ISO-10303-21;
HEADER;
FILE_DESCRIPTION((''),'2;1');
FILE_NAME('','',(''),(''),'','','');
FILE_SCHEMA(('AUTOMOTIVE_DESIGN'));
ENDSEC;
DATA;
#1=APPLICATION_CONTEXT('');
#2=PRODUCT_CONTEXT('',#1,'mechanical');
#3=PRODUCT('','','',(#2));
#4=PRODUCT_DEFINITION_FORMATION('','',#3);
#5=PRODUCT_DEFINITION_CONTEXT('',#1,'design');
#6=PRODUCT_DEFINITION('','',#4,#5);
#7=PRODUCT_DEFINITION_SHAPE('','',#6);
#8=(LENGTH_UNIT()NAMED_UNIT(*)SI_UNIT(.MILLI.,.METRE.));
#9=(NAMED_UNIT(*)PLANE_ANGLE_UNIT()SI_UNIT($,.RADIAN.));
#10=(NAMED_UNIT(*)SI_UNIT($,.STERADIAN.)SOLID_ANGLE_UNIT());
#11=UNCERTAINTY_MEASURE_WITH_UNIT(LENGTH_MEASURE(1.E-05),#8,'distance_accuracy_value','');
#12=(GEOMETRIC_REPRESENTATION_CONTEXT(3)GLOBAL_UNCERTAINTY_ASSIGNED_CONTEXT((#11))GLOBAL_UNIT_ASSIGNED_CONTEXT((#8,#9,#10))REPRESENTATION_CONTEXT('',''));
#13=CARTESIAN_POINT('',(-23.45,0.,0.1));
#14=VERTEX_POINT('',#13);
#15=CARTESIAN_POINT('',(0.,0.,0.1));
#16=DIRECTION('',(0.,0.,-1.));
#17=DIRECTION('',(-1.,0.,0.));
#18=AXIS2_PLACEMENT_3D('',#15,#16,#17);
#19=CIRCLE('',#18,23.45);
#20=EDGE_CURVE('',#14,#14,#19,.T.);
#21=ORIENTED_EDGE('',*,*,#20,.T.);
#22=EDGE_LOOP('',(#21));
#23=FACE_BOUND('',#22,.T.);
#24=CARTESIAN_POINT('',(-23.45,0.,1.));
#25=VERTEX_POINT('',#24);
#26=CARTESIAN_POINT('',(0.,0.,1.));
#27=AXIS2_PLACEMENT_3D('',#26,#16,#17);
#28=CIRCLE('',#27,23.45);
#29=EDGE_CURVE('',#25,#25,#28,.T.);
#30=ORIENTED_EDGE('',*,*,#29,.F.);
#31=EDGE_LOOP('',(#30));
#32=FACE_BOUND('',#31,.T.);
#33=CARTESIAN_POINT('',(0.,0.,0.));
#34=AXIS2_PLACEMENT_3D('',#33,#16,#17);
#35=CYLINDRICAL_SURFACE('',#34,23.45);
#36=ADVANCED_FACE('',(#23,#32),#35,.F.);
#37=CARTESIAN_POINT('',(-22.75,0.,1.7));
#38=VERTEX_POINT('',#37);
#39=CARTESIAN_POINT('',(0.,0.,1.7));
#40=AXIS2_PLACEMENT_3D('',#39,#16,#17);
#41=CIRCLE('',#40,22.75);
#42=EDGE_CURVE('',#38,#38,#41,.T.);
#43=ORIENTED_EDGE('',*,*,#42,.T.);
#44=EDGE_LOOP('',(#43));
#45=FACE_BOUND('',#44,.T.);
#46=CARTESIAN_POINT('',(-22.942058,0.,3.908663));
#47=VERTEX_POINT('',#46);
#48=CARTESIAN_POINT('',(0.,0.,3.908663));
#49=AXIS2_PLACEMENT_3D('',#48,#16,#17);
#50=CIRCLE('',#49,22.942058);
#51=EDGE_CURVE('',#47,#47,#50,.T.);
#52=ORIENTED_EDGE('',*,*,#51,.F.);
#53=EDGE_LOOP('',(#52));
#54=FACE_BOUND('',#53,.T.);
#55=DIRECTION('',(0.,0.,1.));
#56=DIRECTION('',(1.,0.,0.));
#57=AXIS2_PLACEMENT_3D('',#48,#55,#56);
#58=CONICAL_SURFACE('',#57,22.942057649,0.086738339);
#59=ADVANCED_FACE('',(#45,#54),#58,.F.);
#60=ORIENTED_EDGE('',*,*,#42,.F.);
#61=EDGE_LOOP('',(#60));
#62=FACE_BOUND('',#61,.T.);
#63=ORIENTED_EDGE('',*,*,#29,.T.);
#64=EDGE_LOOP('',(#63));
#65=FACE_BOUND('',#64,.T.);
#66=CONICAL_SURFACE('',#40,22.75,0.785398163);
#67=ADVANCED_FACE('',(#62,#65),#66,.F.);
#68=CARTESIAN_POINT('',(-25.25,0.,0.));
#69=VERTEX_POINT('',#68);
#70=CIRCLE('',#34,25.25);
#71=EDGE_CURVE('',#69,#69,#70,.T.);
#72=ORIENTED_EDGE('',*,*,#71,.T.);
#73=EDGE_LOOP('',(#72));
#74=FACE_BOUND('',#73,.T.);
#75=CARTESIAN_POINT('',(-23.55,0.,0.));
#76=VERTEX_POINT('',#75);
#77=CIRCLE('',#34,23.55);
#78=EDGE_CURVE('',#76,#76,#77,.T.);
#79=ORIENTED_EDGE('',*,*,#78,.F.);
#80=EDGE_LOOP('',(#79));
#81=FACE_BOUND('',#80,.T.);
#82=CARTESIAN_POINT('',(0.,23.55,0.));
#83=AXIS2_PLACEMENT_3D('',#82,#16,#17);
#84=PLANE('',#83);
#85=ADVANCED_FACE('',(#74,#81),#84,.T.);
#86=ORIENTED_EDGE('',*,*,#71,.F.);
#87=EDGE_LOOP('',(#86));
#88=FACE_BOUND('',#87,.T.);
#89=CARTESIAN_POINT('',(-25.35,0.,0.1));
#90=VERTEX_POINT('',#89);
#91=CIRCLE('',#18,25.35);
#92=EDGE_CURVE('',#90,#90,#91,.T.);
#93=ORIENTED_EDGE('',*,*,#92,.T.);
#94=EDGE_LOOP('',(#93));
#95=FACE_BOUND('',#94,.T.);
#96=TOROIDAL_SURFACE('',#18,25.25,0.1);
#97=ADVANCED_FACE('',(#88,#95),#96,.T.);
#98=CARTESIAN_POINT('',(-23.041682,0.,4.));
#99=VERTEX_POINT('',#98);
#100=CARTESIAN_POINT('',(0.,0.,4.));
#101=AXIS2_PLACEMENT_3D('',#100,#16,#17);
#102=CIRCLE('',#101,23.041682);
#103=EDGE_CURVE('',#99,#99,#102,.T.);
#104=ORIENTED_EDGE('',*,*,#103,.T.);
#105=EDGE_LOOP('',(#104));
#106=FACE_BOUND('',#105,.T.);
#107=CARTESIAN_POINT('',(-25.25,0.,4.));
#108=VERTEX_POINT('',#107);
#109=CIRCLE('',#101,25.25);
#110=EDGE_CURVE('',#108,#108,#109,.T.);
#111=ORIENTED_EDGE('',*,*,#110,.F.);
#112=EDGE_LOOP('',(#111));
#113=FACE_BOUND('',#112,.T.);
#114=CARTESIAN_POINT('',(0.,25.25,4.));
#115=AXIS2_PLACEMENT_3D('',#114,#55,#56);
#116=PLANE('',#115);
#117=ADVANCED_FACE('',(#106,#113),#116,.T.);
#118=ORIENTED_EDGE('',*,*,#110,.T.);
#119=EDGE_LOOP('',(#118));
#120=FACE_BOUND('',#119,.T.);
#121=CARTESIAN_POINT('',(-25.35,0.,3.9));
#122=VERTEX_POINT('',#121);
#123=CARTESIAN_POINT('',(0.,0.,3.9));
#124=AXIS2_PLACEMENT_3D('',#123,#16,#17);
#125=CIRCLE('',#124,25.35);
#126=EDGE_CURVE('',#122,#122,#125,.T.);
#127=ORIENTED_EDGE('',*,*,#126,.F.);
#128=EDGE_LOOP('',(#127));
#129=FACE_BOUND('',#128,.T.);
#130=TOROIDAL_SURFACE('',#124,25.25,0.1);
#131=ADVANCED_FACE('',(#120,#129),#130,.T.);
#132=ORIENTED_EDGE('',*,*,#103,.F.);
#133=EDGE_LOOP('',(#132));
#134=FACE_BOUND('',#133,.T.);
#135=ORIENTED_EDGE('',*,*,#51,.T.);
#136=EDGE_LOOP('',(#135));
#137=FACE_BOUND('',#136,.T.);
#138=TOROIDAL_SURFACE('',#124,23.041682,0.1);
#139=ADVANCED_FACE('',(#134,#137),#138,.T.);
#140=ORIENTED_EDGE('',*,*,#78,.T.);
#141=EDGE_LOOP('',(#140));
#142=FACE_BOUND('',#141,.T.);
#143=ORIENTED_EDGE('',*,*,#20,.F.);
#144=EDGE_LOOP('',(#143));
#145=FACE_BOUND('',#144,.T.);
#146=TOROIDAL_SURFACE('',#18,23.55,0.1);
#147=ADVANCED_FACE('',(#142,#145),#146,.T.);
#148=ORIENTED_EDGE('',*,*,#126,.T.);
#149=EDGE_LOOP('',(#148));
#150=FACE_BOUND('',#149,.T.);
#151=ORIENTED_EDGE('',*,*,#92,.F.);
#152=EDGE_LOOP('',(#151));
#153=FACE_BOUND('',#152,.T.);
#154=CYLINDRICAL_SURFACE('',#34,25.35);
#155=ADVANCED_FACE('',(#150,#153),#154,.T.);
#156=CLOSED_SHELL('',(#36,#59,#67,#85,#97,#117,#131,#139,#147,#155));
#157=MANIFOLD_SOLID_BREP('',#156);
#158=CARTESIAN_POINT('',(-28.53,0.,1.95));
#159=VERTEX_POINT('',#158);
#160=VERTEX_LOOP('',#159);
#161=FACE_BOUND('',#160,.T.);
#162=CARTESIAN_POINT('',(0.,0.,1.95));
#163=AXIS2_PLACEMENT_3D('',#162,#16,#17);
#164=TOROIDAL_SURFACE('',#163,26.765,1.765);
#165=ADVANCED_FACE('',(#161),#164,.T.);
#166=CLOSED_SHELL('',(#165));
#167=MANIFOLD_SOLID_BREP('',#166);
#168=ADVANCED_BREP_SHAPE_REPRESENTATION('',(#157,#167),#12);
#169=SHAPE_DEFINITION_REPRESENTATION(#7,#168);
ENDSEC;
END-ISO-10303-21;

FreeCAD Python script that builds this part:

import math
import FreeCAD as App
import Part
import Sketcher
Q = App.Units.Quantity

doc = App.newDocument("Part")
body = doc.addObject("PartDesign::Body", "Body")

# Sketch on YZ plane
sketch1 = body.newObject("Sketcher::SketchObject", "Sketch")
sketch1.AttachmentSupport = (doc.getObject("YZ_Plane"), [""])
sketch1.MapMode = "FlatFace"
sketch1.addGeometry([
    Part.LineSegment(App.Vector(23.55, 0, 0), App.Vector(25.25, 0, 0)),  # 0
    Part.ArcOfCircle(Part.Circle(App.Vector(25.25, 0.1, 0), App.Vector(0, 0, 1), 0.1), math.radians(-90), math.radians(0)),  # 1
    Part.LineSegment(App.Vector(25.35, 0.1, 0), App.Vector(25.35, 3.9, 0)),  # 2
    Part.ArcOfCircle(Part.Circle(App.Vector(25.25, 3.9, 0), App.Vector(0, 0, 1), 0.1), math.radians(0), math.radians(90)),  # 3
    Part.LineSegment(App.Vector(25.25, 4, 0), App.Vector(23.041682, 4, 0)),  # 4
    Part.ArcOfCircle(Part.Circle(App.Vector(23.041682, 3.9, 0), App.Vector(0, 0, 1), 0.1), math.radians(90.000001), math.radians(175.030259)),  # 5
    Part.LineSegment(App.Vector(22.942058, 3.908663, 0), App.Vector(22.75, 1.7, 0)),  # 6
    Part.LineSegment(App.Vector(22.75, 1.7, 0), App.Vector(23.45, 1, 0)),  # 7
    Part.LineSegment(App.Vector(23.45, 1, 0), App.Vector(23.45, 0.1, 0)),  # 8
    Part.ArcOfCircle(Part.Circle(App.Vector(23.55, 0.1, 0), App.Vector(0, 0, 1), 0.1), math.radians(180), math.radians(270)),  # 9
], False)
sketch1.addConstraint([
    Sketcher.Constraint("Tangent", 0, 2, 1, 1),
    Sketcher.Constraint("Tangent", 1, 2, 2, 1),
    Sketcher.Constraint("Tangent", 2, 2, 3, 1),
    Sketcher.Constraint("Tangent", 3, 2, 4, 1),
    Sketcher.Constraint("Tangent", 4, 2, 5, 1),
    Sketcher.Constraint("Tangent", 5, 2, 6, 1),
    Sketcher.Constraint("Coincident", 6, 2, 7, 1),
    Sketcher.Constraint("Coincident", 7, 2, 8, 1),
    Sketcher.Constraint("Tangent", 8, 2, 9, 1),
    Sketcher.Constraint("Tangent", 9, 2, 0, 1),
    Sketcher.Constraint("Horizontal", 0),
    Sketcher.Constraint("Vertical", 2),
    Sketcher.Constraint("Horizontal", 4),
    Sketcher.Constraint("Vertical", 8),
    Sketcher.Constraint("Equal", 1, 3),
    Sketcher.Constraint("Equal", 3, 5),
    Sketcher.Constraint("Equal", 5, 9),
    Sketcher.Constraint("PointOnObject", 0, 2, -1),
    Sketcher.Constraint("Radius", 1, 0.1),
    Sketcher.Constraint("Angle", 7, Q("-45 deg")),
    Sketcher.Constraint("DistanceX", 0, 1, 0, 2, 1.7),
    Sketcher.Constraint("DistanceY", 2, 1, 2, 2, 3.8),
    Sketcher.Constraint("DistanceY", 8, 2, 8, 1, 0.9),
    Sketcher.Constraint("DistanceY", -1, 1, 6, 2, 1.7),
    Sketcher.Constraint("DistanceX", -1, 1, 1, 3, 25.25),
    Sketcher.Constraint("DistanceX", 4, 2, 4, 1, 2.208318),
])
revolution = body.newObject("PartDesign::Revolution", "Revolution")
revolution.Profile = sketch1
revolution.ReferenceAxis = (sketch1, ["V_Axis"])
revolution.Angle = 360
body2 = doc.addObject("PartDesign::Body", "Body001")

# Sketch on YZ plane
sketch2 = body2.newObject("Sketcher::SketchObject", "Sketch001")
sketch2.AttachmentSupport = (doc.getObject("YZ_Plane001"), [""])
sketch2.MapMode = "FlatFace"
sketch2.addGeometry(Part.Circle(App.Vector(26.765, 1.95, 0), App.Vector(0, 0, 1), 1.765), False)
sketch2.addConstraint([
    Sketcher.Constraint("Diameter", 0, 3.53),
    Sketcher.Constraint("DistanceY", -1, 1, 0, 3, 1.95),
    Sketcher.Constraint("DistanceX", -1, 1, 0, 3, 26.765),
])
revolution2 = body2.newObject("PartDesign::Revolution", "Revolution001")
revolution2.Profile = sketch2
revolution2.ReferenceAxis = (sketch2, ["V_Axis"])
revolution2.Angle = 360

doc.recompute()
